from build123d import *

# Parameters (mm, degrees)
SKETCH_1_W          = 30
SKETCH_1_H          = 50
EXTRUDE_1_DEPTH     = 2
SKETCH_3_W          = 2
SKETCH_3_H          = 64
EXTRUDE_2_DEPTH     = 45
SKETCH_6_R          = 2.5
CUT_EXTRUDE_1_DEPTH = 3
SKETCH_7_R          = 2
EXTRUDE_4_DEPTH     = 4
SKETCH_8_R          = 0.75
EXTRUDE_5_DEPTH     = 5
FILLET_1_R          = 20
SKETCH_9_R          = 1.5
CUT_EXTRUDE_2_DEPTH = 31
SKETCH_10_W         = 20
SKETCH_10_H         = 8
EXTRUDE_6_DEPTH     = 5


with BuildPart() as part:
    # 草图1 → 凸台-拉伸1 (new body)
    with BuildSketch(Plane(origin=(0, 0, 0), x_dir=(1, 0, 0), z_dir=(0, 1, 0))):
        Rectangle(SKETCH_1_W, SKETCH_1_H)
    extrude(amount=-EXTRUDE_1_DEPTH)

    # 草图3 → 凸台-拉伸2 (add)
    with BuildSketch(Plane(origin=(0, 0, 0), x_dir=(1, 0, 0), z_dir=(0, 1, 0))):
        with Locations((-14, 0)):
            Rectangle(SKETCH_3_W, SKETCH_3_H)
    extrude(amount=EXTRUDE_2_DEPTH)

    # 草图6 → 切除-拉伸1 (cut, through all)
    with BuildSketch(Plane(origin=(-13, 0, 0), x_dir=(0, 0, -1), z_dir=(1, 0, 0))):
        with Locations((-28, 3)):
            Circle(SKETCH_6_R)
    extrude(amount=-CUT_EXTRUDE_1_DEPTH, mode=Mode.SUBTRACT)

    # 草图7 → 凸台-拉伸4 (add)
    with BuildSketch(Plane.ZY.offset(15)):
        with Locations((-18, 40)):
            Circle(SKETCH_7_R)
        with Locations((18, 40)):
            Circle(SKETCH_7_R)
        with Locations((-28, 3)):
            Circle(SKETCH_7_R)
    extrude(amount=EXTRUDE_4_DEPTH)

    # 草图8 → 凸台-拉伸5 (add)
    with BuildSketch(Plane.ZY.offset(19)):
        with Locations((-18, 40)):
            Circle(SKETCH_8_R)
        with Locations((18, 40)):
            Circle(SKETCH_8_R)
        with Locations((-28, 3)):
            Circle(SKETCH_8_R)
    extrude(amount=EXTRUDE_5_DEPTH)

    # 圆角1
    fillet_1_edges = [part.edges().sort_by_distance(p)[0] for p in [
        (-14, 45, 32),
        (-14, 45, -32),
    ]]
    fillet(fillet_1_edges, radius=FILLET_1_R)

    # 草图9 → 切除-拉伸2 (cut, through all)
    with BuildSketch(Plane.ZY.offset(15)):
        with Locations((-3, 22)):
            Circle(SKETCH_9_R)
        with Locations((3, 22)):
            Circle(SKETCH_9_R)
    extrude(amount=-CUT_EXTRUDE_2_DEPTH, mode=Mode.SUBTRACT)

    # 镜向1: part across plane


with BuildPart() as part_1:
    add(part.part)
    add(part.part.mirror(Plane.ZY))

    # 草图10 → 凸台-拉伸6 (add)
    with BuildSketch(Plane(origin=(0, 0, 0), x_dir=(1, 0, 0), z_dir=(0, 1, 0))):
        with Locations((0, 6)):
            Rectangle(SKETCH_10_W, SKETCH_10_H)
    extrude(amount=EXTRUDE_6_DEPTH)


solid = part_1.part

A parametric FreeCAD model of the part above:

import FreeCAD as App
import Part
import Sketcher

V = App.Vector


def edges_at(feature, points):
    """Names of the edges that pass closest to the given points."""
    edges = feature.Shape.Edges
    near = lambda p: min(range(len(edges)), key=lambda i: edges[i].distToShape(Part.Vertex(*p))[0])
    return sorted({f"Edge{near(p) + 1}" for p in points})

doc = App.newDocument("Part")
body = doc.addObject("PartDesign::Body", "Body")

# Sketch on XZ plane
sketch1 = body.newObject("Sketcher::SketchObject", "Sketch")
sketch1.AttachmentSupport = (doc.getObject("XZ_Plane"), [""])
sketch1.MapMode = "FlatFace"
sketch1.addGeometry(Part.LineSegment(V(-15, -25, 0), V(-15, 25, 0)), False)
sketch1.addGeometry(Part.LineSegment(V(-15, 25, 0), V(15, 25, 0)), False)
sketch1.addGeometry(Part.LineSegment(V(15, 25, 0), V(15, -25, 0)), False)
sketch1.addGeometry(Part.LineSegment(V(15, -25, 0), V(-15, -25, 0)), False)
sketch1.addConstraint(Sketcher.Constraint("Coincident", 0, 2, 1, 1))
sketch1.addConstraint(Sketcher.Constraint("Coincident", 1, 2, 2, 1))
sketch1.addConstraint(Sketcher.Constraint("Coincident", 2, 2, 3, 1))
sketch1.addConstraint(Sketcher.Constraint("Coincident", 3, 2, 0, 1))
sketch1.addConstraint(Sketcher.Constraint("Vertical", 0))
sketch1.addConstraint(Sketcher.Constraint("Horizontal", 1))
sketch1.addConstraint(Sketcher.Constraint("Vertical", 2))
sketch1.addConstraint(Sketcher.Constraint("Horizontal", 3))
sketch1.addConstraint(Sketcher.Constraint("Symmetric", 0, 2, 2, 2, -1, 1))
sketch1.addConstraint(Sketcher.Constraint("DistanceX", 1, 1, 1, 2, 30.0))
sketch1.addConstraint(Sketcher.Constraint("DistanceY", 0, 1, 0, 2, 50.0))
pad1 = body.newObject("PartDesign::Pad", "Pad")
pad1.Profile = sketch1
pad1.Length = 2

# Sketch on XZ plane
sketch2 = body.newObject("Sketcher::SketchObject", "Sketch001")
sketch2.AttachmentSupport = (doc.getObject("XZ_Plane"), [""])
sketch2.MapMode = "FlatFace"
sketch2.addGeometry(Part.LineSegment(V(-15, -32, 0), V(-15, 32, 0)), False)
sketch2.addGeometry(Part.LineSegment(V(-15, 32, 0), V(-13, 32, 0)), False)
sketch2.addGeometry(Part.LineSegment(V(-13, 32, 0), V(-13, -32, 0)), False)
sketch2.addGeometry(Part.LineSegment(V(-13, -32, 0), V(-15, -32, 0)), False)
sketch2.addConstraint(Sketcher.Constraint("Coincident", 0, 2, 1, 1))
sketch2.addConstraint(Sketcher.Constraint("Coincident", 1, 2, 2, 1))
sketch2.addConstraint(Sketcher.Constraint("Coincident", 2, 2, 3, 1))
sketch2.addConstraint(Sketcher.Constraint("Coincident", 3, 2, 0, 1))
sketch2.addConstraint(Sketcher.Constraint("Vertical", 0))
sketch2.addConstraint(Sketcher.Constraint("Horizontal", 1))
sketch2.addConstraint(Sketcher.Constraint("Vertical", 2))
sketch2.addConstraint(Sketcher.Constraint("Horizontal", 3))
sketch2.addConstraint(Sketcher.Constraint("DistanceX", 1, 1, 1, 2, 2.0))
sketch2.addConstraint(Sketcher.Constraint("DistanceY", 0, 1, 0, 2, 64.0))
sketch2.addConstraint(Sketcher.Constraint("DistanceX", 0, 2, -1, 1, 15.0))
sketch2.addConstraint(Sketcher.Constraint("DistanceY", -1, 1, 0, 2, 32.0))
pad2 = body.newObject("PartDesign::Pad", "Pad001")
pad2.Profile = sketch2
pad2.Length = 45
pad2.Reversed = True

# Sketch on YZ plane
sketch3 = body.newObject("Sketcher::SketchObject", "Sketch002")
sketch3.AttachmentSupport = (doc.getObject("YZ_Plane"), [""])
sketch3.MapMode = "FlatFace"
sketch3.AttachmentOffset = App.Placement(V(0, 0, -13), App.Rotation())
sketch3.addGeometry(Part.Circle(V(3, 28, 0), V(0, 0, 1), 2.5), False)
sketch3.addConstraint(Sketcher.Constraint("Diameter", 0, 5.0))
sketch3.addConstraint(Sketcher.Constraint("DistanceX", -1, 1, 0, 3, 3.0))
sketch3.addConstraint(Sketcher.Constraint("DistanceY", -1, 1, 0, 3, 28.0))
pocket1 = body.newObject("PartDesign::Pocket", "Pocket")
pocket1.Profile = sketch3
pocket1.Type = "ThroughAll"

# Sketch on YZ plane
sketch4 = body.newObject("Sketcher::SketchObject", "Sketch003")
sketch4.AttachmentSupport = (doc.getObject("YZ_Plane"), [""])
sketch4.MapMode = "FlatFace"
sketch4.AttachmentOffset = App.Placement(V(0, 0, -15), App.Rotation())
sketch4.addGeometry(Part.Circle(V(40, -18, 0), V(0, 0, 1), 2), False)
sketch4.addGeometry(Part.Circle(V(40, 18, 0), V(0, 0, 1), 2), False)
sketch4.addGeometry(Part.Circle(V(3, -28, 0), V(0, 0, 1), 2), False)
sketch4.addConstraint(Sketcher.Constraint("Equal", 0, 1))
sketch4.addConstraint(Sketcher.Constraint("Equal", 1, 2))
sketch4.addConstraint(Sketcher.Constraint("Symmetric", 0, 3, 1, 3, -1))
sketch4.addConstraint(Sketcher.Constraint("Diameter", 0, 4.0))
sketch4.addConstraint(Sketcher.Constraint("DistanceX", -1, 1, 0, 3, 40.0))
sketch4.addConstraint(Sketcher.Constraint("DistanceY", 0, 3, -1, 1, 18.0))
sketch4.addConstraint(Sketcher.Constraint("DistanceX", -1, 1, 2, 3, 3.0))
sketch4.addConstraint(Sketcher.Constraint("DistanceY", 2, 3, -1, 1, 28.0))
pad3 = body.newObject("PartDesign::Pad", "Pad002")
pad3.Profile = sketch4
pad3.Length = 4
pad3.Reversed = True

# Sketch on YZ plane
sketch5 = body.newObject("Sketcher::SketchObject", "Sketch004")
sketch5.AttachmentSupport = (doc.getObject("YZ_Plane"), [""])
sketch5.MapMode = "FlatFace"
sketch5.AttachmentOffset = App.Placement(V(0, 0, -19), App.Rotation())
sketch5.addGeometry(Part.Circle(V(40, -18, 0), V(0, 0, 1), 0.8), False)
sketch5.addGeometry(Part.Circle(V(40, 18, 0), V(0, 0, 1), 0.8), False)
sketch5.addGeometry(Part.Circle(V(3, -28, 0), V(0, 0, 1), 0.8), False)
sketch5.addConstraint(Sketcher.Constraint("Equal", 0, 1))
sketch5.addConstraint(Sketcher.Constraint("Equal", 1, 2))
sketch5.addConstraint(Sketcher.Constraint("Symmetric", 0, 3, 1, 3, -1))
sketch5.addConstraint(Sketcher.Constraint("Diameter", 0, 1.5))
sketch5.addConstraint(Sketcher.Constraint("DistanceX", -1, 1, 0, 3, 40.0))
sketch5.addConstraint(Sketcher.Constraint("DistanceY", 0, 3, -1, 1, 18.0))
sketch5.addConstraint(Sketcher.Constraint("DistanceX", -1, 1, 2, 3, 3.0))
sketch5.addConstraint(Sketcher.Constraint("DistanceY", 2, 3, -1, 1, 28.0))
pad4 = body.newObject("PartDesign::Pad", "Pad003")
pad4.Profile = sketch5
pad4.Length = 5
pad4.Reversed = True
doc.recompute()

fillet = body.newObject("PartDesign::Fillet", "Fillet")
fillet.Base = (pad4, edges_at(pad4, [(-14, 45, 32), (-14, 45, -32)]))
fillet.Radius = 20

# Sketch on YZ plane
sketch6 = body.newObject("Sketcher::SketchObject", "Sketch005")
sketch6.AttachmentSupport = (doc.getObject("YZ_Plane"), [""])
sketch6.MapMode = "FlatFace"
sketch6.AttachmentOffset = App.Placement(V(0, 0, -15), App.Rotation())
sketch6.addGeometry(Part.Circle(V(22, -3, 0), V(0, 0, 1), 1.5), False)
sketch6.addGeometry(Part.Circle(V(22, 3, 0), V(0, 0, 1), 1.5), False)
sketch6.addConstraint(Sketcher.Constraint("Equal", 0, 1))
sketch6.addConstraint(Sketcher.Constraint("Symmetric", 0, 3, 1, 3, -1))
sketch6.addConstraint(Sketcher.Constraint("Diameter", 0, 3.0))
sketch6.addConstraint(Sketcher.Constraint("DistanceX", -1, 1, 0, 3, 22.0))
sketch6.addConstraint(Sketcher.Constraint("DistanceY", 0, 3, -1, 1, 3.0))
pocket2 = body.newObject("PartDesign::Pocket", "Pocket001")
pocket2.Profile = sketch6
pocket2.Type = "ThroughAll"
pocket2.Reversed = True
body2 = doc.addObject("PartDesign::Body", "Body001")
doc.recompute()

body2.BaseFeature = body
doc.recompute()

mirroring = doc.addObject("Part::Mirroring", "Mirroring")
mirroring.Source = body
mirroring.Base = V(0, 0, 0)
mirroring.Normal = V(-1, 0, 0)
body3 = doc.addObject("PartDesign::Body", "Body002")
body3.BaseFeature = mirroring
boolean = body2.newObject("PartDesign::Boolean", "Boolean")
boolean.Type = "Fuse"
boolean.addObjects([body3])
doc.recompute()

# Sketch on XZ plane
sketch7 = body2.newObject("Sketcher::SketchObject", "Sketch006")
sketch7.AttachmentSupport = (doc.getObject("XZ_Plane001"), [""])
sketch7.MapMode = "FlatFace"
sketch7.addGeometry(Part.LineSegment(V(-10, -10, 0), V(-10, -2, 0)), False)
sketch7.addGeometry(Part.LineSegment(V(-10, -2, 0), V(10, -2, 0)), False)
sketch7.addGeometry(Part.LineSegment(V(10, -2, 0), V(10, -10, 0)), False)
sketch7.addGeometry(Part.LineSegment(V(10, -10, 0), V(-10, -10, 0)), False)
sketch7.addConstraint(Sketcher.Constraint("Coincident", 0, 2, 1, 1))
sketch7.addConstraint(Sketcher.Constraint("Coincident", 1, 2, 2, 1))
sketch7.addConstraint(Sketcher.Constraint("Coincident", 2, 2, 3, 1))
sketch7.addConstraint(Sketcher.Constraint("Coincident", 3, 2, 0, 1))
sketch7.addConstraint(Sketcher.Constraint("Vertical", 0))
sketch7.addConstraint(Sketcher.Constraint("Horizontal", 1))
sketch7.addConstraint(Sketcher.Constraint("Vertical", 2))
sketch7.addConstraint(Sketcher.Constraint("Horizontal", 3))
sketch7.addConstraint(Sketcher.Constraint("DistanceX", 1, 1, 1, 2, 20.0))
sketch7.addConstraint(Sketcher.Constraint("DistanceY", 0, 1, 0, 2, 8.0))
sketch7.addConstraint(Sketcher.Constraint("DistanceX", 0, 2, -1, 1, 10.0))
sketch7.addConstraint(Sketcher.Constraint("DistanceY", 0, 2, -1, 1, 2.0))
pad5 = body2.newObject("PartDesign::Pad", "Pad004")
pad5.Profile = sketch7
pad5.Length = 5
pad5.Reversed = True
mirroring.Visibility = False

doc.recompute()
